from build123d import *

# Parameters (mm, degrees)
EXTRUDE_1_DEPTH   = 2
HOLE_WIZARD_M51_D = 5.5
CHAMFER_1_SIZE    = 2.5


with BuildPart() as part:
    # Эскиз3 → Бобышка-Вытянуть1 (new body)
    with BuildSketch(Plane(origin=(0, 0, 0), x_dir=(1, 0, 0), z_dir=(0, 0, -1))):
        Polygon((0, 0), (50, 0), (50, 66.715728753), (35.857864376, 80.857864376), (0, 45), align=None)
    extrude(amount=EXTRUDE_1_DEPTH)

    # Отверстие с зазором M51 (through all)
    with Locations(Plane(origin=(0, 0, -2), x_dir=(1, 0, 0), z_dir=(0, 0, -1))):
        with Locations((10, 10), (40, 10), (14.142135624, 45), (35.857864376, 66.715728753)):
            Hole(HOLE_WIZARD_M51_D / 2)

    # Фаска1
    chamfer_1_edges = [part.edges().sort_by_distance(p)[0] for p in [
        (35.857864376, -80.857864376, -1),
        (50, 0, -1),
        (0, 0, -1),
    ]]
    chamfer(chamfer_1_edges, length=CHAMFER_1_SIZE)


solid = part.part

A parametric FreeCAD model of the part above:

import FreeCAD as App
import Part
import Sketcher
Q = App.Units.Quantity


def edges_at(feature, points):
    """Names of the edges that pass closest to the given points."""
    edges = feature.Shape.Edges
    near = lambda p: min(range(len(edges)), key=lambda i: edges[i].distToShape(Part.Vertex(*p))[0])
    return sorted({f"Edge{near(p) + 1}" for p in points})

doc = App.newDocument("Part")
params = doc.addObject("Spreadsheet::Sheet", "Params")
for row, (alias, value) in enumerate([
    ("sketch1_width", "50 mm"),
    ("sketch1_height", "45 mm"),
    ("sketch1_length", "20 mm"),
    ("pad1_length", "2 mm"),
    ("sketch2_diameter", "5.5 mm"),
    ("hole_diameter", "5.5 mm"),
    ("chamfer_size", "2.5 mm"),
], start=1):
    params.set(f"A{row}", alias)
    params.set(f"B{row}", "=" + value)
    params.setAlias(f"B{row}", alias)

body = doc.addObject("PartDesign::Body", "Body")

# Sketch on XY plane
sketch1 = doc.addObject("Sketcher::SketchObject", "Sketch")
body.addObject(sketch1)
sketch1.AttachmentSupport = (doc.XY_Plane, [""])
sketch1.MapMode = "FlatFace"
sketch1.addGeometry(Part.LineSegment(App.Vector(0, 0, 0), App.Vector(50, 0, 0)), False)
sketch1.addGeometry(Part.LineSegment(App.Vector(50, 0, 0), App.Vector(50, -66.715729, 0)), False)
sketch1.addGeometry(Part.LineSegment(App.Vector(50, -66.715729, 0), App.Vector(35.857864, -80.857864, 0)), False)
sketch1.addGeometry(Part.LineSegment(App.Vector(35.857864, -80.857864, 0), App.Vector(0, -45, 0)), False)
sketch1.addGeometry(Part.LineSegment(App.Vector(0, -45, 0), App.Vector(0, 0, 0)), False)
sketch1.addConstraint(Sketcher.Constraint("Coincident", 0, 2, 1, 1))
sketch1.addConstraint(Sketcher.Constraint("Coincident", 1, 2, 2, 1))
sketch1.addConstraint(Sketcher.Constraint("Coincident", 2, 2, 3, 1))
sketch1.addConstraint(Sketcher.Constraint("Coincident", 3, 2, 4, 1))
sketch1.addConstraint(Sketcher.Constraint("Coincident", 4, 2, 0, 1))
sketch1.addConstraint(Sketcher.Constraint("Horizontal", 0))
sketch1.addConstraint(Sketcher.Constraint("Vertical", 1))
sketch1.addConstraint(Sketcher.Constraint("Vertical", 4))
sketch1.addConstraint(Sketcher.Constraint("Coincident", 4, 2, -1, 1))
sketch1.addConstraint(Sketcher.Constraint("Perpendicular", 2, 3))
sketch1.addConstraint(Sketcher.Constraint("DistanceX", 0, 1, 0, 2, Q("50 mm")))
sketch1.addConstraint(Sketcher.Constraint("DistanceY", 4, 1, 4, 2, Q("45 mm")))
sketch1.addConstraint(Sketcher.Constraint("Angle", 2, Q("-135 deg")))
sketch1.addConstraint(Sketcher.Constraint("Distance", 2, Q("20 mm")))
sketch1.setExpression("Constraints[10]", "Params.sketch1_width")
sketch1.setExpression("Constraints[11]", "Params.sketch1_height")
sketch1.setExpression("Constraints[13]", "Params.sketch1_length")
pad1 = doc.addObject("PartDesign::Pad", "Pad")
body.addObject(pad1)
pad1.Profile = sketch1
pad1.setExpression("Length", "Params.pad1_length")
pad1.Reversed = True

# Sketch on XY plane
sketch2 = doc.addObject("Sketcher::SketchObject", "Sketch001")
body.addObject(sketch2)
sketch2.AttachmentSupport = (doc.XY_Plane, [""])
sketch2.MapMode = "FlatFace"
sketch2.AttachmentOffset = App.Placement(App.Vector(0, 0, -2), App.Rotation())
sketch2.addGeometry(Part.Circle(App.Vector(10, -10, 0), App.Vector(0, 0, 1), 2.75), False)
sketch2.addGeometry(Part.Circle(App.Vector(40, -10, 0), App.Vector(0, 0, 1), 2.75), False)
sketch2.addGeometry(Part.Circle(App.Vector(14.142136, -45, 0), App.Vector(0, 0, 1), 2.75), False)
sketch2.addGeometry(Part.Circle(App.Vector(35.857864, -66.715729, 0), App.Vector(0, 0, 1), 2.75), False)
sketch2.addConstraint(Sketcher.Constraint("Equal", 0, 1))
sketch2.addConstraint(Sketcher.Constraint("Equal", 1, 2))
sketch2.addConstraint(Sketcher.Constraint("Equal", 2, 3))
sketch2.addConstraint(Sketcher.Constraint("Horizontal", 0, 3, 1, 3))
sketch2.addConstraint(Sketcher.Constraint("Diameter", 0, Q("5.5 mm")))
sketch2.addConstraint(Sketcher.Constraint("DistanceX", -1, 1, 0, 3, Q("10 mm")))
sketch2.addConstraint(Sketcher.Constraint("DistanceY", 0, 3, -1, 1, Q("10 mm")))
sketch2.addConstraint(Sketcher.Constraint("DistanceX", -1, 1, 1, 3, Q("40 mm")))
sketch2.addConstraint(Sketcher.Constraint("DistanceY", 2, 3, -1, 1, Q("45 mm")))
sketch2.addConstraint(Sketcher.Constraint("DistanceY", 3, 3, -1, 1, Q("66.715729 mm")))
sketch2.addConstraint(Sketcher.Constraint("DistanceX", 2, 3, 3, 3, Q("21.715729 mm")))
sketch2.addConstraint(Sketcher.Constraint("DistanceX", -1, 1, 2, 3, Q("14.142136 mm")))
sketch2.setExpression("Constraints[4]", "Params.sketch2_diameter")
doc.recompute()
hole = doc.addObject("PartDesign::Hole", "Hole")
body.addObject(hole)
hole.Profile = sketch2
hole.ThreadType = "None"
hole.setExpression("Diameter", "Params.hole_diameter")
hole.DepthType = "ThroughAll"
hole.Reversed = True
doc.recompute()

chamfer = doc.addObject("PartDesign::Chamfer", "Chamfer")
body.addObject(chamfer)
chamfer.Base = (hole, edges_at(hole, [(35.858, -80.858, -1), (50, 0, -1), (0, 0, -1)]))
chamfer.setExpression("Size", "Params.chamfer_size")

doc.recompute()
